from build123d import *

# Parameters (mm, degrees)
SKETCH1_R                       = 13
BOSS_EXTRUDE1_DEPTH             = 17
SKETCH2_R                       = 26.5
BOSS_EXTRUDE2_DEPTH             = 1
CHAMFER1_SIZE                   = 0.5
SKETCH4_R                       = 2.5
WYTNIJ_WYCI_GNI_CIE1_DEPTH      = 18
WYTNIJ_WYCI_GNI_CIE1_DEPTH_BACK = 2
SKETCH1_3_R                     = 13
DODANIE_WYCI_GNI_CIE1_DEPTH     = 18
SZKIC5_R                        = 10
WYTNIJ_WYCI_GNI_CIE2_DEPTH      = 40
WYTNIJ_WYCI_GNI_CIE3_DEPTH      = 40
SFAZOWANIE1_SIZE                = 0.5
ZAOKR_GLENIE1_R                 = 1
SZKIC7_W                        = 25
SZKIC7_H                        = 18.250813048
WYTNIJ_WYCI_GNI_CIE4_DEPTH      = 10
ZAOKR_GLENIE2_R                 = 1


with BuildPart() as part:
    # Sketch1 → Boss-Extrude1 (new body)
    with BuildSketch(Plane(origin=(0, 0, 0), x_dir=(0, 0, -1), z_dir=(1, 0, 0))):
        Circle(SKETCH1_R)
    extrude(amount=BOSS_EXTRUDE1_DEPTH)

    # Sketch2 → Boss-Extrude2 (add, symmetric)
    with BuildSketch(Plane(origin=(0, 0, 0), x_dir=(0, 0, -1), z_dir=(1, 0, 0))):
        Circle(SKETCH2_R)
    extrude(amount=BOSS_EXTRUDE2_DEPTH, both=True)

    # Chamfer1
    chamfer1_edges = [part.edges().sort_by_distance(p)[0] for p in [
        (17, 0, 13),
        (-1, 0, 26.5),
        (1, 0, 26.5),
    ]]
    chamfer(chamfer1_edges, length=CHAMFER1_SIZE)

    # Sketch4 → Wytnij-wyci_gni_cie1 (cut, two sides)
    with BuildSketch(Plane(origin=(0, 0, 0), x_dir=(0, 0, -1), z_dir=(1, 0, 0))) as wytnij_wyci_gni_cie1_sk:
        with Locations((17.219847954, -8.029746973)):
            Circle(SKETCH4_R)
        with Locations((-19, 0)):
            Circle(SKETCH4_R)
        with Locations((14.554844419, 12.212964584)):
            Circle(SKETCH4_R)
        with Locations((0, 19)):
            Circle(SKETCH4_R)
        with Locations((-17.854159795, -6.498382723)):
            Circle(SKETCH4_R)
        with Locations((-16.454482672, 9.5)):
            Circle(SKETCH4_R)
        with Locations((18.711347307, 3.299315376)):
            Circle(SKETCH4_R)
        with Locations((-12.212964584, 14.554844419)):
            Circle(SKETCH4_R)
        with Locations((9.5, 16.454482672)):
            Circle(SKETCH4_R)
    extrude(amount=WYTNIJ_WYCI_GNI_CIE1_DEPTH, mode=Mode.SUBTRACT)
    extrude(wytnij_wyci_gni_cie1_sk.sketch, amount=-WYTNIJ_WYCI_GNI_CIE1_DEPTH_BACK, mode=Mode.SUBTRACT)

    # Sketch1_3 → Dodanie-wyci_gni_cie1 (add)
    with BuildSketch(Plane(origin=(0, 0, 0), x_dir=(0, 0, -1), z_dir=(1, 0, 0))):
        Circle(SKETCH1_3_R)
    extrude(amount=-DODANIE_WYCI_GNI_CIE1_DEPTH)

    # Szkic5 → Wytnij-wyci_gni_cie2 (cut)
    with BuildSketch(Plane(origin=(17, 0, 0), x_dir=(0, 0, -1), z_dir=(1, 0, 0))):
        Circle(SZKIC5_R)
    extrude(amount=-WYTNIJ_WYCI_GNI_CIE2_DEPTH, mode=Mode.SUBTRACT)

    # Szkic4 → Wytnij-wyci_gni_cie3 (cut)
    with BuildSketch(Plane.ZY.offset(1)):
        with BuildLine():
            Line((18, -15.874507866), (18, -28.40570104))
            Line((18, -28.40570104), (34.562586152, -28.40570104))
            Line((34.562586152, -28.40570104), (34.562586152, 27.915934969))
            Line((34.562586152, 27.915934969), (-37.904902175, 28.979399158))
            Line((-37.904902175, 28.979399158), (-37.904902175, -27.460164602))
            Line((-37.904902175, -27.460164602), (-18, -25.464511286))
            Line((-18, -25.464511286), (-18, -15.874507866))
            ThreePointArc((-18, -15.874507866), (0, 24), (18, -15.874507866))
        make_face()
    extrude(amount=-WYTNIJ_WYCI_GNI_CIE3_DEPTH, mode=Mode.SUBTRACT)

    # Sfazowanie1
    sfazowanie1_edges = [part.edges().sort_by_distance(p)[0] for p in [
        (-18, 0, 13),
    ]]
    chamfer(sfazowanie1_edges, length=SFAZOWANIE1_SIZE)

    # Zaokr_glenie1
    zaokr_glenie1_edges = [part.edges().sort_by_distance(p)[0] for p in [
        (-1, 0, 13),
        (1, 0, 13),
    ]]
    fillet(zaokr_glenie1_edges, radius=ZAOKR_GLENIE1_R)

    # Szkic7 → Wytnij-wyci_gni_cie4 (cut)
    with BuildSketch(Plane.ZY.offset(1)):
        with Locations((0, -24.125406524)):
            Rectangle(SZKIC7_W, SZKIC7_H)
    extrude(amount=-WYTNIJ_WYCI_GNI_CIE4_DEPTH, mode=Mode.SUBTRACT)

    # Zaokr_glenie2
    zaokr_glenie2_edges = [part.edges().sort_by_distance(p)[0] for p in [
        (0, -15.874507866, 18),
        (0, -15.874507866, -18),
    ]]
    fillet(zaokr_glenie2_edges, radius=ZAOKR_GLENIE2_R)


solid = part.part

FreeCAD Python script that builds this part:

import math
import FreeCAD as App
import Part
import Sketcher
from FreeCAD import Vector


def edges_at(feature, points):
    """Names of the edges that pass closest to the given points."""
    edges = feature.Shape.Edges
    near = lambda p: min(range(len(edges)), key=lambda i: edges[i].distToShape(Part.Vertex(*p))[0])
    return sorted({f"Edge{near(p) + 1}" for p in points})

doc = App.newDocument("Part")
body = doc.addObject("PartDesign::Body", "Body")

# Sketch on YZ plane
sketch1 = body.newObject("Sketcher::SketchObject", "Sketch")
sketch1.AttachmentSupport = (doc.getObject("YZ_Plane"), [""])
sketch1.MapMode = "FlatFace"
sketch1.addGeometry(Part.Circle(Vector(0, 0, 0), Vector(0, 0, 1), 13), False)
sketch1.addConstraint([
    Sketcher.Constraint("Coincident", 0, 3, -1, 1),
    Sketcher.Constraint("Diameter", 0, 26.0),
])
pad1 = body.newObject("PartDesign::Pad", "Pad")
pad1.Profile = sketch1
pad1.Length = 17

# Sketch on YZ plane
sketch2 = body.newObject("Sketcher::SketchObject", "Sketch001")
sketch2.AttachmentSupport = (doc.getObject("YZ_Plane"), [""])
sketch2.MapMode = "FlatFace"
sketch2.addGeometry(Part.Circle(Vector(0, 0, 0), Vector(0, 0, 1), 26), False)
sketch2.addConstraint([
    Sketcher.Constraint("Coincident", 0, 3, -1, 1),
    Sketcher.Constraint("Diameter", 0, 53.0),
])
pad2 = body.newObject("PartDesign::Pad", "Pad001")
pad2.Profile = sketch2
pad2.Length = 2
pad2.Midplane = True
doc.recompute()

chamfer = body.newObject("PartDesign::Chamfer", "Chamfer")
chamfer.Base = (pad2, edges_at(pad2, [(17, 0, 13), (-1, 0, 26.5), (1, 0, 26.5)]))
chamfer.Size = 0.5

# Sketch on YZ plane
sketch3 = body.newObject("Sketcher::SketchObject", "Sketch002")
sketch3.AttachmentSupport = (doc.getObject("YZ_Plane"), [""])
sketch3.MapMode = "FlatFace"
sketch3.addGeometry([
    Part.Circle(Vector(-8, -17.2, 0), Vector(0, 0, 1), 2.5),  # 0
    Part.Circle(Vector(0, 19, 0), Vector(0, 0, 1), 2.5),  # 1
    Part.Circle(Vector(12.2, -14.6, 0), Vector(0, 0, 1), 2.5),  # 2
    Part.Circle(Vector(19, 0, 0), Vector(0, 0, 1), 2.5),  # 3
    Part.Circle(Vector(-6.5, 17.9, 0), Vector(0, 0, 1), 2.5),  # 4
    Part.Circle(Vector(9.5, 16.5, 0), Vector(0, 0, 1), 2.5),  # 5
    Part.Circle(Vector(3.3, -18.7, 0), Vector(0, 0, 1), 2.5),  # 6
    Part.Circle(Vector(14.6, 12.2, 0), Vector(0, 0, 1), 2.5),  # 7
    Part.Circle(Vector(16.5, -9.5, 0), Vector(0, 0, 1), 2.5),  # 8
], False)
sketch3.addConstraint([
    Sketcher.Constraint("Equal", 0, 1),
    Sketcher.Constraint("Equal", 1, 2),
    Sketcher.Constraint("Equal", 2, 3),
    Sketcher.Constraint("Equal", 3, 4),
    Sketcher.Constraint("Equal", 4, 5),
    Sketcher.Constraint("Equal", 5, 6),
    Sketcher.Constraint("Equal", 6, 7),
    Sketcher.Constraint("Equal", 7, 8),
    Sketcher.Constraint("PointOnObject", 1, 3, -2),
    Sketcher.Constraint("PointOnObject", 3, 3, -1),
    Sketcher.Constraint("Diameter", 0, 5.0),
    Sketcher.Constraint("DistanceY", -1, 1, 1, 3, 19.0),
    Sketcher.Constraint("DistanceX", -1, 1, 3, 3, 19.0),
    Sketcher.Constraint("DistanceX", -1, 1, 5, 3, 9.5),
    Sketcher.Constraint("DistanceY", 8, 3, -1, 1, 9.5),
    Sketcher.Constraint("DistanceY", 6, 3, 0, 3, 1.491499),
    Sketcher.Constraint("DistanceY", -1, 1, 4, 3, 17.85416),
    Sketcher.Constraint("DistanceX", 0, 3, 2, 3, 20.242712),
    Sketcher.Constraint("DistanceY", 0, 3, 5, 3, 33.674331),
    Sketcher.Constraint("DistanceX", 6, 3, 2, 3, 8.913649),
    Sketcher.Constraint("DistanceY", 7, 3, 5, 3, 4.241518),
    Sketcher.Constraint("DistanceX", 2, 3, 7, 3, 2.34188),
    Sketcher.Constraint("DistanceY", 2, 3, 7, 3, 26.767809),
    Sketcher.Constraint("DistanceX", 2, 3, 8, 3, 4.241518),
    Sketcher.Constraint("DistanceX", 0, 3, -1, 1, 8.029747),
    Sketcher.Constraint("DistanceY", 0, 3, -1, 1, 17.219848),
    Sketcher.Constraint("DistanceX", 4, 3, -1, 1, 6.498383),
])
pocket1 = body.newObject("PartDesign::Pocket", "Pocket")
pocket1.Profile = sketch3
pocket1.Type = "ThroughAll"
pocket1.Midplane = True

# Sketch on YZ plane
sketch4 = body.newObject("Sketcher::SketchObject", "Sketch003")
sketch4.AttachmentSupport = (doc.getObject("YZ_Plane"), [""])
sketch4.MapMode = "FlatFace"
sketch4.addGeometry(Part.Circle(Vector(0, 0, 0), Vector(0, 0, 1), 13), False)
sketch4.addConstraint([
    Sketcher.Constraint("Coincident", 0, 3, -1, 1),
    Sketcher.Constraint("Diameter", 0, 26.0),
])
pad3 = body.newObject("PartDesign::Pad", "Pad002")
pad3.Profile = sketch4
pad3.Length = 18
pad3.Reversed = True

# Sketch on YZ plane
sketch5 = body.newObject("Sketcher::SketchObject", "Sketch004")
sketch5.AttachmentSupport = (doc.getObject("YZ_Plane"), [""])
sketch5.MapMode = "FlatFace"
sketch5.AttachmentOffset = App.Placement(Vector(0, 0, 17), App.Rotation())
sketch5.addGeometry(Part.Circle(Vector(0, 0, 0), Vector(0, 0, 1), 10), False)
sketch5.addConstraint([
    Sketcher.Constraint("Coincident", 0, 3, -1, 1),
    Sketcher.Constraint("Diameter", 0, 20.0),
])
pocket2 = body.newObject("PartDesign::Pocket", "Pocket001")
pocket2.Profile = sketch5
pocket2.Length = 40

# Sketch on YZ plane
sketch6 = body.newObject("Sketcher::SketchObject", "Sketch005")
sketch6.AttachmentSupport = (doc.getObject("YZ_Plane"), [""])
sketch6.MapMode = "FlatFace"
sketch6.AttachmentOffset = App.Placement(Vector(0, 0, -1), App.Rotation())
sketch6.addGeometry([
    Part.LineSegment(Vector(-16, 18, 0), Vector(-28, 18, 0)),  # 0
    Part.LineSegment(Vector(-28, 18, 0), Vector(-28, 35, 0)),  # 1
    Part.LineSegment(Vector(-28, 35, 0), Vector(28, 35, 0)),  # 2
    Part.LineSegment(Vector(28, 35, 0), Vector(29, -38, 0)),  # 3
    Part.LineSegment(Vector(29, -38, 0), Vector(-27, -38, 0)),  # 4
    Part.LineSegment(Vector(-27, -38, 0), Vector(-25, -18, 0)),  # 5
    Part.LineSegment(Vector(-25, -18, 0), Vector(-16, -18, 0)),  # 6
    Part.ArcOfCircle(Part.Circle(Vector(0, 0, 0), Vector(0, 0, 1), 24), math.radians(-131), math.radians(131)),  # 7
], False)
sketch6.addConstraint([
    Sketcher.Constraint("Coincident", 0, 2, 1, 1),
    Sketcher.Constraint("Coincident", 1, 2, 2, 1),
    Sketcher.Constraint("Coincident", 2, 2, 3, 1),
    Sketcher.Constraint("Coincident", 3, 2, 4, 1),
    Sketcher.Constraint("Coincident", 4, 2, 5, 1),
    Sketcher.Constraint("Coincident", 5, 2, 6, 1),
    Sketcher.Constraint("Coincident", 6, 2, 7, 1),
    Sketcher.Constraint("Coincident", 7, 2, 0, 1),
    Sketcher.Constraint("Horizontal", 0),
    Sketcher.Constraint("Vertical", 1),
    Sketcher.Constraint("Horizontal", 2),
    Sketcher.Constraint("Horizontal", 4),
    Sketcher.Constraint("Horizontal", 6),
    Sketcher.Constraint("Coincident", 7, 3, -1, 1),
    Sketcher.Constraint("Vertical", 6, 2, 7, 2),
    Sketcher.Constraint("Radius", 7, 24.0),
    Sketcher.Constraint("DistanceY", -1, 1, 0, 2, 18.0),
    Sketcher.Constraint("DistanceX", 0, 2, -1, 1, 28.405701),
    Sketcher.Constraint("DistanceX", -1, 1, 3, 2, 28.979399),
    Sketcher.Constraint("DistanceX", 4, 2, 2, 2, 55.3761),
    Sketcher.Constraint("Distance", 3, 72.475291),
    Sketcher.Constraint("DistanceX", 2, 1, 2, 2, 56.321636),
    Sketcher.Constraint("DistanceX", 6, 1, 6, 2, 9.590003),
    Sketcher.Constraint("DistanceY", 1, 1, 1, 2, 16.562586),
])
pocket3 = body.newObject("PartDesign::Pocket", "Pocket002")
pocket3.Profile = sketch6
pocket3.Length = 40
pocket3.Reversed = True
doc.recompute()

chamfer2 = body.newObject("PartDesign::Chamfer", "Chamfer001")
chamfer2.Base = (pocket3, edges_at(pocket3, [(-18, 0, 13)]))
chamfer2.Size = 0.5
doc.recompute()

fillet = body.newObject("PartDesign::Fillet", "Fillet")
fillet.Base = (chamfer2, edges_at(chamfer2, [(-1, 0, 13), (1, 0, 13)]))
fillet.Radius = 1

# Sketch on YZ plane
sketch7 = body.newObject("Sketcher::SketchObject", "Sketch006")
sketch7.AttachmentSupport = (doc.getObject("YZ_Plane"), [""])
sketch7.MapMode = "FlatFace"
sketch7.AttachmentOffset = App.Placement(Vector(0, 0, -1), App.Rotation())
sketch7.addGeometry([
    Part.LineSegment(Vector(-15, -12, 0), Vector(-33, -12, 0)),
    Part.LineSegment(Vector(-33, -12, 0), Vector(-33, 12, 0)),
    Part.LineSegment(Vector(-33, 12, 0), Vector(-15, 12, 0)),
    Part.LineSegment(Vector(-15, 12, 0), Vector(-15, -12, 0)),
], False)
sketch7.addConstraint([
    Sketcher.Constraint("Coincident", 0, 2, 1, 1),
    Sketcher.Constraint("Coincident", 1, 2, 2, 1),
    Sketcher.Constraint("Coincident", 2, 2, 3, 1),
    Sketcher.Constraint("Coincident", 3, 2, 0, 1),
    Sketcher.Constraint("Horizontal", 0),
    Sketcher.Constraint("Vertical", 1),
    Sketcher.Constraint("Horizontal", 2),
    Sketcher.Constraint("Vertical", 3),
    Sketcher.Constraint("DistanceY", 1, 1, 1, 2, 25.0),
    Sketcher.Constraint("DistanceX", 2, 2, -1, 1, 15.0),
    Sketcher.Constraint("DistanceY", 0, 2, -1, 1, 12.5),
    Sketcher.Constraint("DistanceX", 0, 2, 0, 1, 18.250813),
])
pocket4 = body.newObject("PartDesign::Pocket", "Pocket003")
pocket4.Profile = sketch7
pocket4.Length = 10
pocket4.Reversed = True
doc.recompute()

fillet2 = body.newObject("PartDesign::Fillet", "Fillet001")
fillet2.Base = (pocket4, edges_at(pocket4, [(0, -15.875, 18), (0, -15.875, -18)]))
fillet2.Radius = 1

doc.recompute()
